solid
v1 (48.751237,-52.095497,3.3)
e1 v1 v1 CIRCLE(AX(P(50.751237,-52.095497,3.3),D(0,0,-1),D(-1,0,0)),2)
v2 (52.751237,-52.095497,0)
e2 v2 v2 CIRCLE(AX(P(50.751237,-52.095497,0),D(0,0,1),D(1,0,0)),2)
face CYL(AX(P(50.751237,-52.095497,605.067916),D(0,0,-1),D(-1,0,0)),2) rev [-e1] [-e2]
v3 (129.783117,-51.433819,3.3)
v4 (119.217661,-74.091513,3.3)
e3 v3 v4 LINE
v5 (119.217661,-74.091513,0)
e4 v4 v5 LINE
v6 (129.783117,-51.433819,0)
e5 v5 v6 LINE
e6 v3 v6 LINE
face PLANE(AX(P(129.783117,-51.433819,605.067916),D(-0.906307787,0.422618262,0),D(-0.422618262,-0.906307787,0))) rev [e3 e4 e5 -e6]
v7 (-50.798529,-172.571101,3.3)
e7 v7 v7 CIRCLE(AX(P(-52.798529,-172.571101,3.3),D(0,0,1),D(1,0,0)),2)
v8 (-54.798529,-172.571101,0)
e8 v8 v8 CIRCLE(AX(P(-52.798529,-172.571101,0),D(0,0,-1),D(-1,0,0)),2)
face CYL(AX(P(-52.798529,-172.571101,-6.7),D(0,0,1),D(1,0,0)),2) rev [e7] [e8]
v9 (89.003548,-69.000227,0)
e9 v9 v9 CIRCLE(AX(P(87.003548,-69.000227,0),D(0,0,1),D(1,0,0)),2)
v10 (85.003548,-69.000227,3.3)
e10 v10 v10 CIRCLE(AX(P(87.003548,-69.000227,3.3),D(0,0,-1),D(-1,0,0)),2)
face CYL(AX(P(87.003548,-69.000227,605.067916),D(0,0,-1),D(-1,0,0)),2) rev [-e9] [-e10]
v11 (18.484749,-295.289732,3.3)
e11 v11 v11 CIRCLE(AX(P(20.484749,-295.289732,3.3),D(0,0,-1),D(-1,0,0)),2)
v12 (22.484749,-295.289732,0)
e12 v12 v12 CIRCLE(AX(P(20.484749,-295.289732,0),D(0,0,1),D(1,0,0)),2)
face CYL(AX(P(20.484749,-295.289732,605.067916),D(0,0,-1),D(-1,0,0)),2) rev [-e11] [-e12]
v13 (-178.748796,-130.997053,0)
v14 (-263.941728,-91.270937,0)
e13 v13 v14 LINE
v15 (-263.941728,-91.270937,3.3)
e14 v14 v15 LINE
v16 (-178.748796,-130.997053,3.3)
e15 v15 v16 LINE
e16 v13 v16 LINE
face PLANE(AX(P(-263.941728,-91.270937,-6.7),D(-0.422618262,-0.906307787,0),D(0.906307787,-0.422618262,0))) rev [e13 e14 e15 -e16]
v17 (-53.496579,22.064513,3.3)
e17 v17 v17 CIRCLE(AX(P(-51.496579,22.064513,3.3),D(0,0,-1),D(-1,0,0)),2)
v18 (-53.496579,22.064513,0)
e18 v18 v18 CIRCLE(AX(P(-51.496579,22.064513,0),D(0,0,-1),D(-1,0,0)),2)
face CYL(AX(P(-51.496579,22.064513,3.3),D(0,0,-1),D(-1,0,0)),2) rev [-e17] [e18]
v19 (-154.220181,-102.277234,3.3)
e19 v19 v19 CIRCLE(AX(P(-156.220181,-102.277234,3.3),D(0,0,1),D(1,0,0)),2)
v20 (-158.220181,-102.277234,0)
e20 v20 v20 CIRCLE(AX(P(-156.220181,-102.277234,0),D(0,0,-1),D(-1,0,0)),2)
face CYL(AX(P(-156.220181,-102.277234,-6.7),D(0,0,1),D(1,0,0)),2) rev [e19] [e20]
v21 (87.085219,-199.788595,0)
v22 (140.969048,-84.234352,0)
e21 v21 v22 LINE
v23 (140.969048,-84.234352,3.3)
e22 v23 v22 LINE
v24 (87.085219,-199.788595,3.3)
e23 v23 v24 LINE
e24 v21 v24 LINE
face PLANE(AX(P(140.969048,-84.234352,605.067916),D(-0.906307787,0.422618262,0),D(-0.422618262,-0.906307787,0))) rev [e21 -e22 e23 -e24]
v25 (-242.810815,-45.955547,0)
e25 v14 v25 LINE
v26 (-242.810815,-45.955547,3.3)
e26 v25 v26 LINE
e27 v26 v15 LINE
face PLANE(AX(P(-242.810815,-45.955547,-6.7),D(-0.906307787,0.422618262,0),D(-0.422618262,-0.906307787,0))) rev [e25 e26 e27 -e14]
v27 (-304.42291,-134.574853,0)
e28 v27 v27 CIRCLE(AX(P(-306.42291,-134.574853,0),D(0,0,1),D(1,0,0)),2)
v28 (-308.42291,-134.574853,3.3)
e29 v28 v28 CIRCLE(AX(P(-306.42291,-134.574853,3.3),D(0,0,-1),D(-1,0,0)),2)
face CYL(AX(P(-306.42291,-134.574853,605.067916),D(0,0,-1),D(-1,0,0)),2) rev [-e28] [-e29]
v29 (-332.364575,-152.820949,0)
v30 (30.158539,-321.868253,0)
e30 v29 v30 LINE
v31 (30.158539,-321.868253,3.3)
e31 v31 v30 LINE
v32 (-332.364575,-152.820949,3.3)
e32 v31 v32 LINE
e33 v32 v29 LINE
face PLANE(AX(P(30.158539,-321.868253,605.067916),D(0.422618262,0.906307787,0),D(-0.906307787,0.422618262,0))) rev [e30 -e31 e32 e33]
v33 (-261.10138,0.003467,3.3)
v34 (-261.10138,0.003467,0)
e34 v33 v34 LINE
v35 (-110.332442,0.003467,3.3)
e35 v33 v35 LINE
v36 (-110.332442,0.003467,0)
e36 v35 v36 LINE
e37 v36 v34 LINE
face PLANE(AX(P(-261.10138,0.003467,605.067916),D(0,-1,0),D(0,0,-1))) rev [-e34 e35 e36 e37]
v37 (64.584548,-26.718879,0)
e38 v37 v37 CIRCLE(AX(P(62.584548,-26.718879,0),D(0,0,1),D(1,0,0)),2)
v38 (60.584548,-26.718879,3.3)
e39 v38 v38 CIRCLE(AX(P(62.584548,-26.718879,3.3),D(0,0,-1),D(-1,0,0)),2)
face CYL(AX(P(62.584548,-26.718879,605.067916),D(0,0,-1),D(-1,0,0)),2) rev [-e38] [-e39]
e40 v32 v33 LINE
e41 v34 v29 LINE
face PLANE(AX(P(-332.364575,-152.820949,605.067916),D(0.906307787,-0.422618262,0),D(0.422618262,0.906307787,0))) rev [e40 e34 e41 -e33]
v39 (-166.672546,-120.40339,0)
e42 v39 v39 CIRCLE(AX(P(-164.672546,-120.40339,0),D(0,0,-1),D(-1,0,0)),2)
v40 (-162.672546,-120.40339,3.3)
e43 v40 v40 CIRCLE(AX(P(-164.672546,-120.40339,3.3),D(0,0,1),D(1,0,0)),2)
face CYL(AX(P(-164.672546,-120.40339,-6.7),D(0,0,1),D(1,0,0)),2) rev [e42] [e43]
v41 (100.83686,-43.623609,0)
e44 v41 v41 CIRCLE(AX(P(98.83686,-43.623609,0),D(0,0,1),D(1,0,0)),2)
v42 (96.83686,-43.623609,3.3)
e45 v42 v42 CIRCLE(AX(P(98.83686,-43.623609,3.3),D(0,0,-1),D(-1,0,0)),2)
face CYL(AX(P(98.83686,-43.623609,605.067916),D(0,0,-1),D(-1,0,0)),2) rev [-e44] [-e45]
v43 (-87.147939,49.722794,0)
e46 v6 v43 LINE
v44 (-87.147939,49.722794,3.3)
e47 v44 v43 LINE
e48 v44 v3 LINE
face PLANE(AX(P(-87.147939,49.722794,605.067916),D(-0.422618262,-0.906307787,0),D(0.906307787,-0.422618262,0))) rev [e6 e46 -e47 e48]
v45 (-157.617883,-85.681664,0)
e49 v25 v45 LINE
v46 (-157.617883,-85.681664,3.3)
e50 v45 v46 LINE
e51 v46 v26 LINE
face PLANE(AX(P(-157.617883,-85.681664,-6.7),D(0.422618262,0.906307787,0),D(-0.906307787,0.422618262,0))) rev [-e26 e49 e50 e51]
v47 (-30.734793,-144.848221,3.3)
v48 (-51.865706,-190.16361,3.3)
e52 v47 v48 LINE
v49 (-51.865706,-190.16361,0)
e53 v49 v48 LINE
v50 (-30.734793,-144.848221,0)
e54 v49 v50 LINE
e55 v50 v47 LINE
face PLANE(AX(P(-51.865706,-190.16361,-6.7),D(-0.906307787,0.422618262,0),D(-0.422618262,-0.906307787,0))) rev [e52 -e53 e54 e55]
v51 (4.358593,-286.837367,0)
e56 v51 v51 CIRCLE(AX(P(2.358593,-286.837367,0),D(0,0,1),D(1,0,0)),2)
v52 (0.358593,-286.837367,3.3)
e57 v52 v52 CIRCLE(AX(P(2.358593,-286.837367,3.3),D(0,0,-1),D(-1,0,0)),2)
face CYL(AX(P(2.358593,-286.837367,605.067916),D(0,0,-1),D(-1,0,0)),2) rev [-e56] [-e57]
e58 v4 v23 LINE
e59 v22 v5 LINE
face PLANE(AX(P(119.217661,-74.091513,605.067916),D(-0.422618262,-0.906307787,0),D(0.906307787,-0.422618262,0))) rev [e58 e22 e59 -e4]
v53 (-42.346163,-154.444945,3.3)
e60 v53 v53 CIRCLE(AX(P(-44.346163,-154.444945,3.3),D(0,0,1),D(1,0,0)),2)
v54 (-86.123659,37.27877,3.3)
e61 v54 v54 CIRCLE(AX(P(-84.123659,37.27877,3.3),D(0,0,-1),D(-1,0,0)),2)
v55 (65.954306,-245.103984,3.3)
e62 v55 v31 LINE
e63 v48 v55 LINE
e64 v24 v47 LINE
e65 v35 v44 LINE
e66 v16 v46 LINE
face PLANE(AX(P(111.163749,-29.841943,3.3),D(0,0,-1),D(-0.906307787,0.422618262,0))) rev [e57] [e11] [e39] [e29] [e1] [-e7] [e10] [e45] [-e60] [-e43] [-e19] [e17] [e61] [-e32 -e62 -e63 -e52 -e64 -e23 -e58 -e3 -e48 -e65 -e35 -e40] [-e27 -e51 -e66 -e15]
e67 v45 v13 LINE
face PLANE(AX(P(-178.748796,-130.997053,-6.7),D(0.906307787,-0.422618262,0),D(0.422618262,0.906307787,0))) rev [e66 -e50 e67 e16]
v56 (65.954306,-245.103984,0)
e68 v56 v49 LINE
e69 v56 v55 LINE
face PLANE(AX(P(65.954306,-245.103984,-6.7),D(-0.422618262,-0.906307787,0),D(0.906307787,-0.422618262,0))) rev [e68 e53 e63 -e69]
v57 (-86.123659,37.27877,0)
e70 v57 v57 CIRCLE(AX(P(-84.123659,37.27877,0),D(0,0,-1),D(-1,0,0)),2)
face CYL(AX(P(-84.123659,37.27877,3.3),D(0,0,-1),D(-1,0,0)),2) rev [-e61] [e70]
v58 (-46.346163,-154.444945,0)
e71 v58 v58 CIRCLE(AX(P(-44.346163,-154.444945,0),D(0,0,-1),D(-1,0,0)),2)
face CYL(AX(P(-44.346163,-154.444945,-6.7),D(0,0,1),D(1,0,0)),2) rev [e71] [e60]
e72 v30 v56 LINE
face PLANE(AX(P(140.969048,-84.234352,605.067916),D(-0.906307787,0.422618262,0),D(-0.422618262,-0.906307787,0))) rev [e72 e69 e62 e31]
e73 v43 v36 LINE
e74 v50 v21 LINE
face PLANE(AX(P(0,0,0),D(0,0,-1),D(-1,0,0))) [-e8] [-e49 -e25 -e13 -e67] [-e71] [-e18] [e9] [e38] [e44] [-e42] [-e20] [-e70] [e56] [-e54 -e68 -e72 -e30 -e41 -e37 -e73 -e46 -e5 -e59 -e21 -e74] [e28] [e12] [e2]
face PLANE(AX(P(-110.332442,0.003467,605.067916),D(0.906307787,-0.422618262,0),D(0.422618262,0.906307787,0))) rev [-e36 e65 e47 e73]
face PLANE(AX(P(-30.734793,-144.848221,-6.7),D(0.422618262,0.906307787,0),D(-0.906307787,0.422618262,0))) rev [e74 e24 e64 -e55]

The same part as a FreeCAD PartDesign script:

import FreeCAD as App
import Part
import Sketcher

V = App.Vector
Q = App.Units.Quantity

doc = App.newDocument("Part")
params = doc.addObject("Spreadsheet::Sheet", "Params")
for row, (alias, value) in enumerate([
    ("sketch1_diameter", "4 mm"),
    ("sketch1_length", "400 mm"),
    ("sketch1_length2", "24 mm"),
    ("sketch1_length3", "25 mm"),
    ("sketch1_length4", "262.2 mm"),
    ("pad1_length", "3.3 mm"),
    ("sketch2_diameter", "4 mm"),
    ("sketch3_length", "130 mm"),
    ("sketch3_length2", "50 mm"),
    ("pocket2_length", "10 mm"),
    ("sketch4_length", "50 mm"),
    ("sketch4_length2", "94 mm"),
    ("pocket3_length", "10 mm"),
    ("sketch5_diameter", "4 mm"),
    ("pocket4_length", "10 mm"),
], start=1):
    params.set(f"A{row}", alias)
    params.set(f"B{row}", "=" + value)
    params.setAlias(f"B{row}", alias)

body = doc.addObject("PartDesign::Body", "Body")

# Sketch on XY plane
sketch1 = body.newObject("Sketcher::SketchObject", "Sketch")
sketch1.AttachmentSupport = (doc.getObject("XY_Plane"), [""])
sketch1.MapMode = "FlatFace"
sketch1.addGeometry([
    Part.LineSegment(V(-110.3, 0, 0), V(-261.1, 0, 0)),  # 0
    Part.LineSegment(V(-261.1, 0, 0), V(-332.4, -152.8, 0)),  # 1
    Part.LineSegment(V(-332.4, -152.8, 0), V(30.2, -321.9, 0)),  # 2
    Part.LineSegment(V(30.2, -321.9, 0), V(141, -84.2, 0)),  # 3
    Part.LineSegment(V(141, -84.2, 0), V(119.2, -74.1, 0)),  # 4
    Part.LineSegment(V(119.2, -74.1, 0), V(129.8, -51.4, 0)),  # 5
    Part.LineSegment(V(129.8, -51.4, 0), V(-87.1, 49.7, 0)),  # 6
    Part.LineSegment(V(-87.1, 49.7, 0), V(-110.3, 0, 0)),  # 7
    Part.Circle(V(20.5, -295.3, 0), V(0, 0, 1), 2),  # 8
    Part.Circle(V(2.4, -286.8, 0), V(0, 0, 1), 2),  # 9
    Part.Circle(V(87, -69, 0), V(0, 0, 1), 2),  # 10
    Part.Circle(V(98.8, -43.6, 0), V(0, 0, 1), 2),  # 11
    Part.Circle(V(50.8, -52.1, 0), V(0, 0, 1), 2),  # 12
    Part.Circle(V(62.6, -26.7, 0), V(0, 0, 1), 2),  # 13
    Part.Circle(V(-306.4, -134.6, 0), V(0, 0, 1), 2),  # 14
], False)
sketch1.addConstraint([
    Sketcher.Constraint("Coincident", 0, 2, 1, 1),
    Sketcher.Constraint("Coincident", 1, 2, 2, 1),
    Sketcher.Constraint("Coincident", 2, 2, 3, 1),
    Sketcher.Constraint("Coincident", 3, 2, 4, 1),
    Sketcher.Constraint("Coincident", 4, 2, 5, 1),
    Sketcher.Constraint("Coincident", 5, 2, 6, 1),
    Sketcher.Constraint("Coincident", 6, 2, 7, 1),
    Sketcher.Constraint("Coincident", 7, 2, 0, 1),
    Sketcher.Constraint("Horizontal", 0),
    Sketcher.Constraint("Equal", 8, 9),
    Sketcher.Constraint("Equal", 9, 10),
    Sketcher.Constraint("Equal", 10, 11),
    Sketcher.Constraint("Equal", 11, 12),
    Sketcher.Constraint("Equal", 12, 13),
    Sketcher.Constraint("Equal", 13, 14),
    Sketcher.Constraint("Perpendicular", 1, 2),
    Sketcher.Constraint("Perpendicular", 2, 3),
    Sketcher.Constraint("Perpendicular", 3, 4),
    Sketcher.Constraint("Perpendicular", 4, 5),
    Sketcher.Constraint("Perpendicular", 5, 6),
    Sketcher.Constraint("Perpendicular", 6, 7),
    Sketcher.Constraint("Diameter", 8, 4.0),
    Sketcher.Constraint("Angle", 1, Q("-115 deg")),
    Sketcher.Constraint("Distance", 2, 400.0),
    Sketcher.Constraint("Distance", 4, 24.0),
    Sketcher.Constraint("Distance", 5, 25.0),
    Sketcher.Constraint("Distance", 3, 262.2),
    Sketcher.Constraint("DistanceX", 13, 3, 10, 3, 24.419),
    Sketcher.Constraint("DistanceX", 0, 2, 0, 1, 150.768938),
    Sketcher.Constraint("DistanceX", 8, 3, 10, 3, 66.518799),
    Sketcher.Constraint("DistanceX", 10, 3, 3, 2, 53.965499),
    Sketcher.Constraint("DistanceX", 11, 3, 4, 2, 20.380801),
    Sketcher.Constraint("DistanceX", -1, 1, 8, 3, 20.484749),
    Sketcher.Constraint("DistanceY", 11, 3, -1, 1, 43.623609),
    Sketcher.Constraint("DistanceY", 13, 3, -1, 1, 26.718879),
    Sketcher.Constraint("DistanceX", 14, 3, -1, 1, 306.42291),
    Sketcher.Constraint("DistanceX", 0, 2, -1, 1, 261.10138),
    Sketcher.Constraint("DistanceY", 1, 2, -1, 1, 152.820949),
    Sketcher.Constraint("DistanceY", 9, 3, 10, 3, 217.83714),
    Sketcher.Constraint("DistanceY", 10, 3, 11, 3, 25.376618),
    Sketcher.Constraint("DistanceX", 12, 3, 10, 3, 36.252311),
    Sketcher.Constraint("DistanceY", 10, 3, 12, 3, 16.90473),
    Sketcher.Constraint("DistanceY", 8, 3, 14, 3, 160.714879),
    Sketcher.Constraint("DistanceY", 14, 3, 0, 2, 134.57832),
    Sketcher.Constraint("DistanceX", 1, 2, 9, 3, 334.723169),
])
sketch1.setExpression("Constraints[21]", "Params.sketch1_diameter")
sketch1.setExpression("Constraints[23]", "Params.sketch1_length")
sketch1.setExpression("Constraints[24]", "Params.sketch1_length2")
sketch1.setExpression("Constraints[25]", "Params.sketch1_length3")
sketch1.setExpression("Constraints[26]", "Params.sketch1_length4")
pad1 = body.newObject("PartDesign::Pad", "Pad")
pad1.Profile = sketch1
pad1.setExpression("Length", "Params.pad1_length")

# Sketch on XY plane
sketch2 = body.newObject("Sketcher::SketchObject", "Sketch001")
sketch2.AttachmentSupport = (doc.getObject("XY_Plane"), [""])
sketch2.MapMode = "FlatFace"
sketch2.addGeometry([
    Part.Circle(V(-51.5, 22.1, 0), V(0, 0, 1), 2),
    Part.Circle(V(-84.1, 37.3, 0), V(0, 0, 1), 2),
], False)
sketch2.addConstraint([
    Sketcher.Constraint("Equal", 0, 1),
    Sketcher.Constraint("Diameter", 0, 4.0),
    Sketcher.Constraint("DistanceX", 0, 3, -1, 1, 51.496579),
    Sketcher.Constraint("DistanceX", 1, 3, -1, 1, 84.123659),
    Sketcher.Constraint("DistanceY", -1, 1, 1, 3, 37.27877),
    Sketcher.Constraint("DistanceY", -1, 1, 0, 3, 22.064513),
])
sketch2.setExpression("Constraints[1]", "Params.sketch2_diameter")
pocket1 = body.newObject("PartDesign::Pocket", "Pocket")
pocket1.Profile = sketch2
pocket1.Type = "ThroughAll"
pocket1.Reversed = True

# Sketch on XY plane
sketch3 = body.newObject("Sketcher::SketchObject", "Sketch002")
sketch3.AttachmentSupport = (doc.getObject("XY_Plane"), [""])
sketch3.MapMode = "FlatFace"
sketch3.AttachmentOffset = App.Placement(V(0, 0, 3.3), App.Rotation())
sketch3.addGeometry([
    Part.LineSegment(V(-52, -190, 0), V(66, -245, 0)),
    Part.LineSegment(V(66, -245, 0), V(87, -200, 0)),
    Part.LineSegment(V(87, -200, 0), V(-31, -145, 0)),
    Part.LineSegment(V(-31, -145, 0), V(-52, -190, 0)),
], False)
sketch3.addConstraint([
    Sketcher.Constraint("Coincident", 0, 2, 1, 1),
    Sketcher.Constraint("Coincident", 1, 2, 2, 1),
    Sketcher.Constraint("Coincident", 2, 2, 3, 1),
    Sketcher.Constraint("Coincident", 3, 2, 0, 1),
    Sketcher.Constraint("Perpendicular", 0, 1),
    Sketcher.Constraint("Perpendicular", 1, 2),
    Sketcher.Constraint("Perpendicular", 2, 3),
    Sketcher.Constraint("Angle", 0, Q("-25 deg")),
    Sketcher.Constraint("Distance", 0, 130.0),
    Sketcher.Constraint("Distance", 1, 50.0),
    Sketcher.Constraint("DistanceX", -1, 1, 1, 2, 87.085219),
    Sketcher.Constraint("DistanceY", 2, 2, -1, 1, 144.848221),
])
sketch3.setExpression("Constraints[8]", "Params.sketch3_length")
sketch3.setExpression("Constraints[9]", "Params.sketch3_length2")
pocket2 = body.newObject("PartDesign::Pocket", "Pocket001")
pocket2.Profile = sketch3
pocket2.setExpression("Length", "Params.pocket2_length")

# Sketch on XY plane
sketch4 = body.newObject("Sketcher::SketchObject", "Sketch003")
sketch4.AttachmentSupport = (doc.getObject("XY_Plane"), [""])
sketch4.MapMode = "FlatFace"
sketch4.AttachmentOffset = App.Placement(V(0, 0, 3.3), App.Rotation())
sketch4.addGeometry([
    Part.LineSegment(V(-179, -131, 0), V(-158, -86, 0)),
    Part.LineSegment(V(-158, -86, 0), V(-243, -46, 0)),
    Part.LineSegment(V(-243, -46, 0), V(-264, -91, 0)),
    Part.LineSegment(V(-264, -91, 0), V(-179, -131, 0)),
], False)
sketch4.addConstraint([
    Sketcher.Constraint("Coincident", 0, 2, 1, 1),
    Sketcher.Constraint("Coincident", 1, 2, 2, 1),
    Sketcher.Constraint("Coincident", 2, 2, 3, 1),
    Sketcher.Constraint("Coincident", 3, 2, 0, 1),
    Sketcher.Constraint("Perpendicular", 0, 1),
    Sketcher.Constraint("Perpendicular", 1, 2),
    Sketcher.Constraint("Perpendicular", 2, 3),
    Sketcher.Constraint("Angle", 0, Q("65 deg")),
    Sketcher.Constraint("Distance", 0, 50.0),
    Sketcher.Constraint("Distance", 1, 94.0),
    Sketcher.Constraint("DistanceX", 2, 2, -1, 1, 263.941728),
    Sketcher.Constraint("DistanceY", 0, 2, -1, 1, 85.681664),
])
sketch4.setExpression("Constraints[8]", "Params.sketch4_length")
sketch4.setExpression("Constraints[9]", "Params.sketch4_length2")
pocket3 = body.newObject("PartDesign::Pocket", "Pocket002")
pocket3.Profile = sketch4
pocket3.setExpression("Length", "Params.pocket3_length")

# Sketch on XY plane
sketch5 = body.newObject("Sketcher::SketchObject", "Sketch004")
sketch5.AttachmentSupport = (doc.getObject("XY_Plane"), [""])
sketch5.MapMode = "FlatFace"
sketch5.AttachmentOffset = App.Placement(V(0, 0, 3.3), App.Rotation())
sketch5.addGeometry([
    Part.Circle(V(-52.8, -172.6, 0), V(0, 0, 1), 2),
    Part.Circle(V(-44.3, -154.4, 0), V(0, 0, 1), 2),
    Part.Circle(V(-164.7, -120.4, 0), V(0, 0, 1), 2),
    Part.Circle(V(-156.2, -102.3, 0), V(0, 0, 1), 2),
], False)
sketch5.addConstraint([
    Sketcher.Constraint("Equal", 0, 1),
    Sketcher.Constraint("Equal", 1, 2),
    Sketcher.Constraint("Equal", 2, 3),
    Sketcher.Constraint("Diameter", 0, 4.0),
    Sketcher.Constraint("DistanceY", 0, 3, -1, 1, 172.571101),
    Sketcher.Constraint("DistanceX", 0, 3, -1, 1, 52.798529),
    Sketcher.Constraint("DistanceY", 2, 3, -1, 1, 120.40339),
    Sketcher.Constraint("DistanceX", 3, 3, -1, 1, 156.220181),
    Sketcher.Constraint("DistanceY", 1, 3, 3, 3, 52.167711),
    Sketcher.Constraint("DistanceX", 1, 3, -1, 1, 44.346163),
    Sketcher.Constraint("DistanceY", 1, 3, -1, 1, 154.444945),
    Sketcher.Constraint("DistanceX", 2, 3, -1, 1, 164.672546),
])
sketch5.setExpression("Constraints[3]", "Params.sketch5_diameter")
pocket4 = body.newObject("PartDesign::Pocket", "Pocket003")
pocket4.Profile = sketch5
pocket4.setExpression("Length", "Params.pocket4_length")

doc.recompute()
